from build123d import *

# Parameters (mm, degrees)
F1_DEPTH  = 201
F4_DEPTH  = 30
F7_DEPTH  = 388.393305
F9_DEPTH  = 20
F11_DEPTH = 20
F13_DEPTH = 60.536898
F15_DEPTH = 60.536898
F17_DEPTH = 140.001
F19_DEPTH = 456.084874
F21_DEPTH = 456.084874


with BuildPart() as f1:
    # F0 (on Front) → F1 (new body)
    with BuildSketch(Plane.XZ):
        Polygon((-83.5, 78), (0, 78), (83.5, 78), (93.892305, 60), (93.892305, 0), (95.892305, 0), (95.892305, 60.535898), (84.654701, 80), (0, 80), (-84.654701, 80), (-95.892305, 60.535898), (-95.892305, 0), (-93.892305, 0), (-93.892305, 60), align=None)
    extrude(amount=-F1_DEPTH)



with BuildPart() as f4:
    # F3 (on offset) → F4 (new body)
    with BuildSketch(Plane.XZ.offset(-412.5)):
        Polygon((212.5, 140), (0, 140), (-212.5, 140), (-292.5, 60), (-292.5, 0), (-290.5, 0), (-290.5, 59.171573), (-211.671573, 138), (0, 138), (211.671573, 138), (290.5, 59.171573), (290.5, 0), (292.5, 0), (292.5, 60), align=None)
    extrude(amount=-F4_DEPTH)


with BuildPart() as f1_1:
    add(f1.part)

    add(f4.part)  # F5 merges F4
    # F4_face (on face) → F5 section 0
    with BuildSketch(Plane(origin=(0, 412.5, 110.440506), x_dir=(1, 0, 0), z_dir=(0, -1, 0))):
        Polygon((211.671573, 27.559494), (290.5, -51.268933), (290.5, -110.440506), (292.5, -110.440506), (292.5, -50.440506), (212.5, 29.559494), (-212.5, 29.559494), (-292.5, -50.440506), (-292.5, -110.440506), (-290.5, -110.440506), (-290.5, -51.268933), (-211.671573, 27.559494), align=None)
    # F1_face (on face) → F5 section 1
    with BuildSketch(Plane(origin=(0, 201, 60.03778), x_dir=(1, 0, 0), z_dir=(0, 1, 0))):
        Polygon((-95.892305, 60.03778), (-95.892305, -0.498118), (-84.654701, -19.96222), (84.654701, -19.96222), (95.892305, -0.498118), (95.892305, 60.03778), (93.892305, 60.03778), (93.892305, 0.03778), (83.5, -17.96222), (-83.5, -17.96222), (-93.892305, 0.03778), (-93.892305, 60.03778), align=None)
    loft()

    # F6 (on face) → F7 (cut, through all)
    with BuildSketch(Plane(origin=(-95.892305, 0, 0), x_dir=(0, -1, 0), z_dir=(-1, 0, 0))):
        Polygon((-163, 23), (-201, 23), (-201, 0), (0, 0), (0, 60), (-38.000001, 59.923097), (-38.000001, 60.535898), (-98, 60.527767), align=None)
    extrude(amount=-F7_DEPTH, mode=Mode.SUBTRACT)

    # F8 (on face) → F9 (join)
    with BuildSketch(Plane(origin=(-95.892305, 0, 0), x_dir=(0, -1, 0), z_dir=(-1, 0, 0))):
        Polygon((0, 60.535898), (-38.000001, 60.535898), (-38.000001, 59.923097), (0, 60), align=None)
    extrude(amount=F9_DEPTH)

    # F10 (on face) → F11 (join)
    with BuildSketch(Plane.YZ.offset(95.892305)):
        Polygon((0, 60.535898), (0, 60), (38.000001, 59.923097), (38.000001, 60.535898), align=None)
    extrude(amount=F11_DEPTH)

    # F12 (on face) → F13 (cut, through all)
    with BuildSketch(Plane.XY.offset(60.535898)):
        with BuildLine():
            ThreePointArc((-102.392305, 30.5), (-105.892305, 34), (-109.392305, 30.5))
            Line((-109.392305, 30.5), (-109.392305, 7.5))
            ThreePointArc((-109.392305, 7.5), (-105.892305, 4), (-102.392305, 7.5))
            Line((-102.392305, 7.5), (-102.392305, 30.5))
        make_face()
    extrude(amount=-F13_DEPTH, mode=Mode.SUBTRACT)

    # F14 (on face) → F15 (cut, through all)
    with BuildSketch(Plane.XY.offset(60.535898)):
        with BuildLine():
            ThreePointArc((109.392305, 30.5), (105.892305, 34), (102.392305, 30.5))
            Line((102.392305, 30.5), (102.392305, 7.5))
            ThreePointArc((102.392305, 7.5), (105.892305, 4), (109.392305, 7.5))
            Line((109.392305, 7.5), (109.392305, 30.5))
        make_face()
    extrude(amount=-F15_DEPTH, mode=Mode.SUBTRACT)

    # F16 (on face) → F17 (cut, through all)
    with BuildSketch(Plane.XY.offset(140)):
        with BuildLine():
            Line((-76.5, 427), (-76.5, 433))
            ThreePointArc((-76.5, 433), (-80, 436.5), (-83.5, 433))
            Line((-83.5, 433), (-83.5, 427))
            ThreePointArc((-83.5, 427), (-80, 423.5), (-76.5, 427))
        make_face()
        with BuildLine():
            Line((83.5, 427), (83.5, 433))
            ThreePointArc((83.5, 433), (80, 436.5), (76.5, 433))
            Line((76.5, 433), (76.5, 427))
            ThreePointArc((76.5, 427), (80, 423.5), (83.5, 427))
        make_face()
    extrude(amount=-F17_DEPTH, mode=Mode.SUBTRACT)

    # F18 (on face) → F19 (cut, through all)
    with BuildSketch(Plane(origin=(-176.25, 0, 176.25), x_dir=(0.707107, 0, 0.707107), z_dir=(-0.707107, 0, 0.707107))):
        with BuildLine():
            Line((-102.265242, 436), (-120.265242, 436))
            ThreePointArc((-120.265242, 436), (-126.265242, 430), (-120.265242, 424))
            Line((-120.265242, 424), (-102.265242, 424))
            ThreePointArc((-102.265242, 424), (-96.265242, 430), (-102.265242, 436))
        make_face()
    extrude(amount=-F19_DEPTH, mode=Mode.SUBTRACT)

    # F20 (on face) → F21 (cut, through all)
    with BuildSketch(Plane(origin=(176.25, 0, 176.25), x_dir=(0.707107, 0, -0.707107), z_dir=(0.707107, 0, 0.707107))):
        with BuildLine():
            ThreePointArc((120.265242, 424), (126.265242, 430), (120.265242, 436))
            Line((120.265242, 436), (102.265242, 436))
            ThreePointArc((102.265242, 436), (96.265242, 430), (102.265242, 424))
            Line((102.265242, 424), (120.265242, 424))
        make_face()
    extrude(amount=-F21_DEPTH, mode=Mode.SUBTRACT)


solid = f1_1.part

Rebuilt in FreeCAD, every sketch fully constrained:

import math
import FreeCAD as App
import Part
import Sketcher
from FreeCAD import Vector
Q = App.Units.Quantity


def add_polygon(sketch, points):
    """Adds a closed chain of lines whose ends are joined by coincident constraints."""
    first, n = sketch.GeometryCount, len(points)
    for a, b in zip(points, points[1:] + points[:1]):
        sketch.addGeometry(Part.LineSegment(App.Vector(*a, 0), App.Vector(*b, 0)), False)
    for i in range(n):
        sketch.addConstraint(Sketcher.Constraint("Coincident", first + i, 2, first + (i + 1) % n, 1))

doc = App.newDocument("Part")
body = doc.addObject("PartDesign::Body", "Body")

# Sketch on XZ plane
sketch1 = body.newObject("Sketcher::SketchObject", "Sketch")
sketch1.AttachmentSupport = (doc.getObject("XZ_Plane"), [""])
sketch1.MapMode = "FlatFace"
add_polygon(sketch1, [(-83.5, 78), (83.5, 78), (93.9, 60), (93.9, 0), (95.9, 0), (95.9, 60.5), (84.7, 80), (-84.7, 80), (-95.9, 60.5), (-95.9, 0), (-93.9, 0), (-93.9, 60)])  # lines 0-11
sketch1.addConstraint(Sketcher.Constraint("Horizontal", 0))
sketch1.addConstraint(Sketcher.Constraint("Vertical", 2))
sketch1.addConstraint(Sketcher.Constraint("Horizontal", 3))
sketch1.addConstraint(Sketcher.Constraint("Vertical", 4))
sketch1.addConstraint(Sketcher.Constraint("Horizontal", 6))
sketch1.addConstraint(Sketcher.Constraint("Vertical", 8))
sketch1.addConstraint(Sketcher.Constraint("Horizontal", 9))
sketch1.addConstraint(Sketcher.Constraint("Vertical", 10))
sketch1.addConstraint(Sketcher.Constraint("Symmetric", 3, 2, 8, 2, -1, 1))
sketch1.addConstraint(Sketcher.Constraint("Symmetric", 2, 2, 9, 2, -2))
sketch1.addConstraint(Sketcher.Constraint("Parallel", 1, 5))
sketch1.addConstraint(Sketcher.Constraint("Parallel", 7, 11))
sketch1.addConstraint(Sketcher.Constraint("Horizontal", 4, 2, 7, 2))
sketch1.addConstraint(Sketcher.Constraint("Horizontal", 1, 2, 10, 2))
sketch1.addConstraint(Sketcher.Constraint("Equal", 5, 7))
sketch1.addConstraint(Sketcher.Constraint("DistanceX", 0, 1, 0, 2, Q("167 mm")))
sketch1.addConstraint(Sketcher.Constraint("DistanceX", 3, 1, 3, 2, Q("2 mm")))
sketch1.addConstraint(Sketcher.Constraint("DistanceY", 2, 2, 2, 1, Q("60 mm")))
sketch1.addConstraint(Sketcher.Constraint("Angle", 1, Q("-60 deg")))
sketch1.addConstraint(Sketcher.Constraint("DistanceY", -1, 1, 0, 2, Q("78 mm")))
sketch1.addConstraint(Sketcher.Constraint("DistanceY", -1, 1, 5, 2, Q("80 mm")))
sketch1.addConstraint(Sketcher.Constraint("DistanceX", 6, 2, 6, 1, Q("169.309402 mm")))
pad1 = body.newObject("PartDesign::Pad", "Pad")
pad1.Profile = sketch1
pad1.Length = 201
pad1.Reversed = True
body2 = doc.addObject("PartDesign::Body", "Body001")

# Sketch on XZ plane
sketch2 = body2.newObject("Sketcher::SketchObject", "Sketch001")
sketch2.AttachmentSupport = (doc.getObject("XZ_Plane001"), [""])
sketch2.MapMode = "FlatFace"
sketch2.AttachmentOffset = App.Placement(Vector(0, 0, -412.5), App.Rotation())
add_polygon(sketch2, [(212.5, 140), (-212.5, 140), (-292.5, 60), (-292.5, 0), (-290.5, 0), (-290.5, 59.2), (-211.7, 138), (211.7, 138), (290.5, 59.2), (290.5, 0), (292.5, 0), (292.5, 60)])  # lines 0-11
sketch2.addConstraint(Sketcher.Constraint("Horizontal", 0))
sketch2.addConstraint(Sketcher.Constraint("Vertical", 2))
sketch2.addConstraint(Sketcher.Constraint("Horizontal", 3))
sketch2.addConstraint(Sketcher.Constraint("Vertical", 4))
sketch2.addConstraint(Sketcher.Constraint("Horizontal", 6))
sketch2.addConstraint(Sketcher.Constraint("Vertical", 8))
sketch2.addConstraint(Sketcher.Constraint("Horizontal", 9))
sketch2.addConstraint(Sketcher.Constraint("Vertical", 10))
sketch2.addConstraint(Sketcher.Constraint("Symmetric", 3, 2, 8, 2, -1, 1))
sketch2.addConstraint(Sketcher.Constraint("Symmetric", 2, 2, 9, 2, -2))
sketch2.addConstraint(Sketcher.Constraint("Parallel", 1, 5))
sketch2.addConstraint(Sketcher.Constraint("Perpendicular", 5, 7))
sketch2.addConstraint(Sketcher.Constraint("Parallel", 7, 11))
sketch2.addConstraint(Sketcher.Constraint("Horizontal", 4, 2, 7, 2))
sketch2.addConstraint(Sketcher.Constraint("Horizontal", 1, 2, 10, 2))
sketch2.addConstraint(Sketcher.Constraint("Equal", 5, 7))
sketch2.addConstraint(Sketcher.Constraint("DistanceX", 0, 2, 0, 1, Q("425 mm")))
sketch2.addConstraint(Sketcher.Constraint("DistanceX", 3, 1, 3, 2, Q("2 mm")))
sketch2.addConstraint(Sketcher.Constraint("DistanceY", 2, 2, 2, 1, Q("60 mm")))
sketch2.addConstraint(Sketcher.Constraint("DistanceY", -1, 1, 0, 2, Q("140 mm")))
sketch2.addConstraint(Sketcher.Constraint("DistanceY", -1, 1, 5, 2, Q("138 mm")))
sketch2.addConstraint(Sketcher.Constraint("Distance", 5, Q("111.480231 mm")))
pad2 = body2.newObject("PartDesign::Pad", "Pad001")
pad2.Profile = sketch2
pad2.Length = 30
pad2.Reversed = True
body.AllowCompound = True
doc.recompute()

boolean = body.newObject("PartDesign::Boolean", "Boolean")
boolean.Type = "Fuse"
boolean.addObjects([body2])

# Sketch on XZ plane
sketch3 = body.newObject("Sketcher::SketchObject", "Sketch002")
sketch3.AttachmentSupport = (doc.getObject("XZ_Plane"), [""])
sketch3.MapMode = "FlatFace"
sketch3.AttachmentOffset = App.Placement(Vector(0, 0, -412.5), App.Rotation())
add_polygon(sketch3, [(211.7, 138), (290.5, 59.2), (290.5, 0), (292.5, 0), (292.5, 60), (212.5, 140), (-212.5, 140), (-292.5, 60), (-292.5, 0), (-290.5, 0), (-290.5, 59.2), (-211.7, 138)])  # lines 0-11
sketch3.addConstraint(Sketcher.Constraint("Vertical", 1))
sketch3.addConstraint(Sketcher.Constraint("Horizontal", 2))
sketch3.addConstraint(Sketcher.Constraint("Vertical", 3))
sketch3.addConstraint(Sketcher.Constraint("Horizontal", 5))
sketch3.addConstraint(Sketcher.Constraint("Vertical", 7))
sketch3.addConstraint(Sketcher.Constraint("Horizontal", 8))
sketch3.addConstraint(Sketcher.Constraint("Vertical", 9))
sketch3.addConstraint(Sketcher.Constraint("Horizontal", 11))
sketch3.addConstraint(Sketcher.Constraint("Symmetric", 2, 2, 7, 2, -1, 1))
sketch3.addConstraint(Sketcher.Constraint("Symmetric", 1, 2, 8, 2, -2))
sketch3.addConstraint(Sketcher.Constraint("Parallel", 0, 4))
sketch3.addConstraint(Sketcher.Constraint("Perpendicular", 4, 6))
sketch3.addConstraint(Sketcher.Constraint("Parallel", 6, 10))
sketch3.addConstraint(Sketcher.Constraint("Horizontal", 3, 2, 6, 2))
sketch3.addConstraint(Sketcher.Constraint("Horizontal", 0, 2, 9, 2))
sketch3.addConstraint(Sketcher.Constraint("Equal", 4, 6))
sketch3.addConstraint(Sketcher.Constraint("DistanceX", 2, 1, 2, 2, Q("2 mm")))
sketch3.addConstraint(Sketcher.Constraint("DistanceX", 5, 2, 5, 1, Q("425 mm")))
sketch3.addConstraint(Sketcher.Constraint("DistanceY", 3, 1, 3, 2, Q("60 mm")))
sketch3.addConstraint(Sketcher.Constraint("DistanceY", -1, 1, 4, 2, Q("140 mm")))
sketch3.addConstraint(Sketcher.Constraint("DistanceY", -1, 1, 10, 2, Q("138 mm")))
sketch3.addConstraint(Sketcher.Constraint("Distance", 0, Q("111.480231 mm")))

# Sketch on XZ plane
sketch4 = body.newObject("Sketcher::SketchObject", "Sketch003")
sketch4.AttachmentSupport = (doc.getObject("XZ_Plane"), [""])
sketch4.MapMode = "FlatFace"
sketch4.AttachmentOffset = App.Placement(Vector(0, 0, -201), App.Rotation())
add_polygon(sketch4, [(-95.9, 0), (-95.9, 60.5), (-84.7, 80), (84.7, 80), (95.9, 60.5), (95.9, 0), (93.9, 0), (93.9, 60), (83.5, 78), (-83.5, 78), (-93.9, 60), (-93.9, 0)])  # lines 0-11
sketch4.addConstraint(Sketcher.Constraint("Vertical", 0))
sketch4.addConstraint(Sketcher.Constraint("Horizontal", 2))
sketch4.addConstraint(Sketcher.Constraint("Vertical", 4))
sketch4.addConstraint(Sketcher.Constraint("Horizontal", 5))
sketch4.addConstraint(Sketcher.Constraint("Vertical", 6))
sketch4.addConstraint(Sketcher.Constraint("Horizontal", 8))
sketch4.addConstraint(Sketcher.Constraint("Vertical", 10))
sketch4.addConstraint(Sketcher.Constraint("Horizontal", 11))
sketch4.addConstraint(Sketcher.Constraint("Symmetric", 5, 2, 10, 2, -1, 1))
sketch4.addConstraint(Sketcher.Constraint("Symmetric", 0, 2, 3, 2, -2))
sketch4.addConstraint(Sketcher.Constraint("PointOnObject", 4, 2, -1))
sketch4.addConstraint(Sketcher.Constraint("Parallel", 3, 7))
sketch4.addConstraint(Sketcher.Constraint("Parallel", 1, 9))
sketch4.addConstraint(Sketcher.Constraint("Horizontal", 6, 2, 9, 2))
sketch4.addConstraint(Sketcher.Constraint("Equal", 1, 3))
sketch4.addConstraint(Sketcher.Constraint("DistanceX", 5, 2, 5, 1, Q("2 mm")))
sketch4.addConstraint(Sketcher.Constraint("DistanceX", 8, 2, 8, 1, Q("167 mm")))
sketch4.addConstraint(Sketcher.Constraint("DistanceY", 6, 1, 6, 2, Q("60 mm")))
sketch4.addConstraint(Sketcher.Constraint("Angle", 1, Q("60.000001 deg")))
sketch4.addConstraint(Sketcher.Constraint("DistanceY", -1, 1, 1, 2, Q("80 mm")))
sketch4.addConstraint(Sketcher.Constraint("DistanceY", -1, 1, 7, 2, Q("78 mm")))
sketch4.addConstraint(Sketcher.Constraint("DistanceX", 2, 1, 2, 2, Q("169.309402 mm")))

additiveloft = body.newObject("PartDesign::AdditiveLoft", "AdditiveLoft")
additiveloft.Profile = sketch3
additiveloft.Sections = [sketch4]

# Sketch on YZ plane
sketch5 = body.newObject("Sketcher::SketchObject", "Sketch004")
sketch5.AttachmentSupport = (doc.getObject("YZ_Plane"), [""])
sketch5.MapMode = "FlatFace"
sketch5.AttachmentOffset = App.Placement(Vector(0, 0, -95.892305), App.Rotation())
add_polygon(sketch5, [(163, 23), (201, 23), (201, 0), (0, 0), (0, 60), (38, 59.9), (38, 60.5), (98, 60.5)])  # lines 0-7
sketch5.addConstraint(Sketcher.Constraint("Horizontal", 0))
sketch5.addConstraint(Sketcher.Constraint("Vertical", 1))
sketch5.addConstraint(Sketcher.Constraint("Horizontal", 2))
sketch5.addConstraint(Sketcher.Constraint("Vertical", 3))
sketch5.addConstraint(Sketcher.Constraint("Vertical", 5))
sketch5.addConstraint(Sketcher.Constraint("Coincident", 2, 2, -1, 1))
sketch5.addConstraint(Sketcher.Constraint("DistanceX", 0, 1, 0, 2, Q("38 mm")))
sketch5.addConstraint(Sketcher.Constraint("DistanceX", 2, 2, 2, 1, Q("201 mm")))
sketch5.addConstraint(Sketcher.Constraint("DistanceY", 1, 2, 1, 1, Q("23 mm")))
sketch5.addConstraint(Sketcher.Constraint("DistanceY", 3, 1, 3, 2, Q("60 mm")))
sketch5.addConstraint(Sketcher.Constraint("Angle", 7, Q("-30 deg")))
sketch5.addConstraint(Sketcher.Constraint("Distance", 6, Q("60 mm")))
sketch5.addConstraint(Sketcher.Constraint("DistanceX", -1, 1, 4, 2, Q("38.000001 mm")))
sketch5.addConstraint(Sketcher.Constraint("DistanceY", 5, 1, 5, 2, Q("0.612801 mm")))
sketch5.addConstraint(Sketcher.Constraint("DistanceY", -1, 1, 5, 2, Q("60.535898 mm")))
pocket1 = body.newObject("PartDesign::Pocket", "Pocket")
pocket1.Profile = sketch5
pocket1.Type = "ThroughAll"
pocket1.Reversed = True

# Sketch on YZ plane
sketch6 = body.newObject("Sketcher::SketchObject", "Sketch005")
sketch6.AttachmentSupport = (doc.getObject("YZ_Plane"), [""])
sketch6.MapMode = "FlatFace"
sketch6.AttachmentOffset = App.Placement(Vector(0, 0, -95.892305), App.Rotation())
add_polygon(sketch6, [(0, 60.5), (38, 60.5), (38, 59.9), (0, 60)])  # lines 0-3
sketch6.addConstraint(Sketcher.Constraint("Horizontal", 0))
sketch6.addConstraint(Sketcher.Constraint("Vertical", 1))
sketch6.addConstraint(Sketcher.Constraint("Vertical", 3))
sketch6.addConstraint(Sketcher.Constraint("PointOnObject", 2, 2, -2))
sketch6.addConstraint(Sketcher.Constraint("DistanceX", 0, 1, 0, 2, Q("38.000001 mm")))
sketch6.addConstraint(Sketcher.Constraint("DistanceY", -1, 1, 2, 2, Q("60 mm")))
sketch6.addConstraint(Sketcher.Constraint("DistanceY", 1, 2, 1, 1, Q("0.612801 mm")))
sketch6.addConstraint(Sketcher.Constraint("DistanceY", 3, 1, 3, 2, Q("0.535898 mm")))
pad3 = body.newObject("PartDesign::Pad", "Pad002")
pad3.Profile = sketch6
pad3.Length = 20
pad3.Reversed = True

# Sketch on YZ plane
sketch7 = body.newObject("Sketcher::SketchObject", "Sketch006")
sketch7.AttachmentSupport = (doc.getObject("YZ_Plane"), [""])
sketch7.MapMode = "FlatFace"
sketch7.AttachmentOffset = App.Placement(Vector(0, 0, 95.892305), App.Rotation())
add_polygon(sketch7, [(0, 60.5), (0, 60), (38, 59.9), (38, 60.5)])  # lines 0-3
sketch7.addConstraint(Sketcher.Constraint("Vertical", 0))
sketch7.addConstraint(Sketcher.Constraint("Vertical", 2))
sketch7.addConstraint(Sketcher.Constraint("Horizontal", 3))
sketch7.addConstraint(Sketcher.Constraint("PointOnObject", 0, 2, -2))
sketch7.addConstraint(Sketcher.Constraint("DistanceX", 3, 2, 3, 1, Q("38.000001 mm")))
sketch7.addConstraint(Sketcher.Constraint("DistanceY", -1, 1, 0, 2, Q("60 mm")))
sketch7.addConstraint(Sketcher.Constraint("DistanceY", 0, 2, 0, 1, Q("0.535898 mm")))
sketch7.addConstraint(Sketcher.Constraint("DistanceY", 2, 1, 2, 2, Q("0.612801 mm")))
pad4 = body.newObject("PartDesign::Pad", "Pad003")
pad4.Profile = sketch7
pad4.Length = 20

# Sketch on XY plane
sketch8 = body.newObject("Sketcher::SketchObject", "Sketch007")
sketch8.AttachmentSupport = (doc.getObject("XY_Plane"), [""])
sketch8.MapMode = "FlatFace"
sketch8.AttachmentOffset = App.Placement(Vector(0, 0, 60.535898), App.Rotation())
sketch8.addGeometry(Part.ArcOfCircle(Part.Circle(Vector(-105.9, 30.5, 0), Vector(0, 0, 1), 3.5), math.radians(0), math.radians(180)), False)
sketch8.addGeometry(Part.LineSegment(Vector(-109.4, 30.5, 0), Vector(-109.4, 7.5, 0)), False)
sketch8.addGeometry(Part.ArcOfCircle(Part.Circle(Vector(-105.9, 7.5, 0), Vector(0, 0, 1), 3.5), math.radians(180), math.radians(360)), False)
sketch8.addGeometry(Part.LineSegment(Vector(-102.4, 7.5, 0), Vector(-102.4, 30.5, 0)), False)
sketch8.addConstraint(Sketcher.Constraint("Tangent", 0, 2, 1, 1))
sketch8.addConstraint(Sketcher.Constraint("Tangent", 1, 2, 2, 1))
sketch8.addConstraint(Sketcher.Constraint("Tangent", 2, 2, 3, 1))
sketch8.addConstraint(Sketcher.Constraint("Tangent", 3, 2, 0, 1))
sketch8.addConstraint(Sketcher.Constraint("Vertical", 1))
sketch8.addConstraint(Sketcher.Constraint("Vertical", 3))
sketch8.addConstraint(Sketcher.Constraint("Radius", 0, Q("3.5 mm")))
sketch8.addConstraint(Sketcher.Constraint("DistanceY", 1, 2, 1, 1, Q("23 mm")))
sketch8.addConstraint(Sketcher.Constraint("DistanceY", -1, 1, 0, 3, Q("30.5 mm")))
sketch8.addConstraint(Sketcher.Constraint("DistanceX", 0, 3, -1, 1, Q("105.892305 mm")))
pocket2 = body.newObject("PartDesign::Pocket", "Pocket001")
pocket2.Profile = sketch8
pocket2.Type = "ThroughAll"

# Sketch on XY plane
sketch9 = body.newObject("Sketcher::SketchObject", "Sketch008")
sketch9.AttachmentSupport = (doc.getObject("XY_Plane"), [""])
sketch9.MapMode = "FlatFace"
sketch9.AttachmentOffset = App.Placement(Vector(0, 0, 60.535898), App.Rotation())
sketch9.addGeometry(Part.ArcOfCircle(Part.Circle(Vector(105.9, 30.5, 0), Vector(0, 0, 1), 3.5), math.radians(0), math.radians(180)), False)
sketch9.addGeometry(Part.LineSegment(Vector(102.4, 30.5, 0), Vector(102.4, 7.5, 0)), False)
sketch9.addGeometry(Part.ArcOfCircle(Part.Circle(Vector(105.9, 7.5, 0), Vector(0, 0, 1), 3.5), math.radians(180), math.radians(360)), False)
sketch9.addGeometry(Part.LineSegment(Vector(109.4, 7.5, 0), Vector(109.4, 30.5, 0)), False)
sketch9.addConstraint(Sketcher.Constraint("Tangent", 0, 2, 1, 1))
sketch9.addConstraint(Sketcher.Constraint("Tangent", 1, 2, 2, 1))
sketch9.addConstraint(Sketcher.Constraint("Tangent", 2, 2, 3, 1))
sketch9.addConstraint(Sketcher.Constraint("Tangent", 3, 2, 0, 1))
sketch9.addConstraint(Sketcher.Constraint("Vertical", 1))
sketch9.addConstraint(Sketcher.Constraint("Vertical", 3))
sketch9.addConstraint(Sketcher.Constraint("Radius", 0, Q("3.5 mm")))
sketch9.addConstraint(Sketcher.Constraint("DistanceY", 1, 2, 1, 1, Q("23 mm")))
sketch9.addConstraint(Sketcher.Constraint("DistanceY", -1, 1, 0, 3, Q("30.5 mm")))
sketch9.addConstraint(Sketcher.Constraint("DistanceX", -1, 1, 0, 3, Q("105.892305 mm")))
pocket3 = body.newObject("PartDesign::Pocket", "Pocket002")
pocket3.Profile = sketch9
pocket3.Type = "ThroughAll"

# Sketch on XY plane
sketch10 = body.newObject("Sketcher::SketchObject", "Sketch009")
sketch10.AttachmentSupport = (doc.getObject("XY_Plane"), [""])
sketch10.MapMode = "FlatFace"
sketch10.AttachmentOffset = App.Placement(Vector(0, 0, 140), App.Rotation())
sketch10.addGeometry(Part.LineSegment(Vector(-76.5, 427, 0), Vector(-76.5, 433, 0)), False)
sketch10.addGeometry(Part.ArcOfCircle(Part.Circle(Vector(-80, 433, 0), Vector(0, 0, 1), 3.5), math.radians(0), math.radians(180)), False)
sketch10.addGeometry(Part.LineSegment(Vector(-83.5, 433, 0), Vector(-83.5, 427, 0)), False)
sketch10.addGeometry(Part.ArcOfCircle(Part.Circle(Vector(-80, 427, 0), Vector(0, 0, 1), 3.5), math.radians(180), math.radians(360)), False)
sketch10.addGeometry(Part.LineSegment(Vector(83.5, 427, 0), Vector(83.5, 433, 0)), False)
sketch10.addGeometry(Part.ArcOfCircle(Part.Circle(Vector(80, 433, 0), Vector(0, 0, 1), 3.5), math.radians(0), math.radians(180)), False)
sketch10.addGeometry(Part.LineSegment(Vector(76.5, 433, 0), Vector(76.5, 427, 0)), False)
sketch10.addGeometry(Part.ArcOfCircle(Part.Circle(Vector(80, 427, 0), Vector(0, 0, 1), 3.5), math.radians(180), math.radians(360)), False)
sketch10.addConstraint(Sketcher.Constraint("Tangent", 0, 2, 1, 1))
sketch10.addConstraint(Sketcher.Constraint("Tangent", 1, 2, 2, 1))
sketch10.addConstraint(Sketcher.Constraint("Tangent", 2, 2, 3, 1))
sketch10.addConstraint(Sketcher.Constraint("Tangent", 3, 2, 0, 1))
sketch10.addConstraint(Sketcher.Constraint("Tangent", 4, 2, 5, 1))
sketch10.addConstraint(Sketcher.Constraint("Tangent", 5, 2, 6, 1))
sketch10.addConstraint(Sketcher.Constraint("Tangent", 6, 2, 7, 1))
sketch10.addConstraint(Sketcher.Constraint("Tangent", 7, 2, 4, 1))
sketch10.addConstraint(Sketcher.Constraint("Vertical", 0))
sketch10.addConstraint(Sketcher.Constraint("Vertical", 2))
sketch10.addConstraint(Sketcher.Constraint("Vertical", 4))
sketch10.addConstraint(Sketcher.Constraint("Vertical", 6))
sketch10.addConstraint(Sketcher.Constraint("Equal", 3, 5))
sketch10.addConstraint(Sketcher.Constraint("Symmetric", 1, 3, 5, 3, -2))
sketch10.addConstraint(Sketcher.Constraint("Horizontal", 3, 3, 7, 3))
sketch10.addConstraint(Sketcher.Constraint("Radius", 1, Q("3.5 mm")))
sketch10.addConstraint(Sketcher.Constraint("DistanceY", 0, 1, 0, 2, Q("6 mm")))
sketch10.addConstraint(Sketcher.Constraint("DistanceX", 1, 3, -1, 1, Q("80 mm")))
sketch10.addConstraint(Sketcher.Constraint("DistanceY", -1, 1, 1, 3, Q("433 mm")))
pocket4 = body.newObject("PartDesign::Pocket", "Pocket003")
pocket4.Profile = sketch10
pocket4.Type = "ThroughAll"

# Sketch on an angled plane
sketch11 = body.newObject("Sketcher::SketchObject", "Sketch010")
sketch11.Placement = App.Placement(Vector(-176.25, 0, 176.25), App.Rotation(Vector(0.707106781, 0, 0.707106781), Vector(0, 0.999999999, 0), Vector(-0.707106781, 0, 0.707106781), "ZXY"))
sketch11.addGeometry(Part.LineSegment(Vector(-102, 436, 0), Vector(-120, 436, 0)), False)
sketch11.addGeometry(Part.ArcOfCircle(Part.Circle(Vector(-120, 430, 0), Vector(0, 0, 1), 6), math.radians(90), math.radians(270)), False)
sketch11.addGeometry(Part.LineSegment(Vector(-120, 424, 0), Vector(-102, 424, 0)), False)
sketch11.addGeometry(Part.ArcOfCircle(Part.Circle(Vector(-102, 430, 0), Vector(0, 0, 1), 6), math.radians(-90), math.radians(90)), False)
sketch11.addConstraint(Sketcher.Constraint("Tangent", 0, 2, 1, 1))
sketch11.addConstraint(Sketcher.Constraint("Tangent", 1, 2, 2, 1))
sketch11.addConstraint(Sketcher.Constraint("Tangent", 2, 2, 3, 1))
sketch11.addConstraint(Sketcher.Constraint("Tangent", 3, 2, 0, 1))
sketch11.addConstraint(Sketcher.Constraint("Horizontal", 0))
sketch11.addConstraint(Sketcher.Constraint("Horizontal", 2))
sketch11.addConstraint(Sketcher.Constraint("Radius", 1, Q("6 mm")))
sketch11.addConstraint(Sketcher.Constraint("DistanceX", 0, 2, 0, 1, Q("18 mm")))
sketch11.addConstraint(Sketcher.Constraint("DistanceY", -1, 1, 1, 3, Q("430 mm")))
sketch11.addConstraint(Sketcher.Constraint("DistanceX", 1, 3, -1, 1, Q("120.265242 mm")))
pocket5 = body.newObject("PartDesign::Pocket", "Pocket004")
pocket5.Profile = sketch11
pocket5.Type = "ThroughAll"

# Sketch on an angled plane
sketch12 = body.newObject("Sketcher::SketchObject", "Sketch011")
sketch12.Placement = App.Placement(Vector(176.25, 0, 176.25), App.Rotation(Vector(0.707106781, 0, -0.707106781), Vector(0, 0.999999999, 0), Vector(0.707106781, 0, 0.707106781), "ZXY"))
sketch12.addGeometry(Part.ArcOfCircle(Part.Circle(Vector(120, 430, 0), Vector(0, 0, 1), 6), math.radians(-90), math.radians(90)), False)
sketch12.addGeometry(Part.LineSegment(Vector(120, 436, 0), Vector(102, 436, 0)), False)
sketch12.addGeometry(Part.ArcOfCircle(Part.Circle(Vector(102, 430, 0), Vector(0, 0, 1), 6), math.radians(90), math.radians(270)), False)
sketch12.addGeometry(Part.LineSegment(Vector(102, 424, 0), Vector(120, 424, 0)), False)
sketch12.addConstraint(Sketcher.Constraint("Tangent", 0, 2, 1, 1))
sketch12.addConstraint(Sketcher.Constraint("Tangent", 1, 2, 2, 1))
sketch12.addConstraint(Sketcher.Constraint("Tangent", 2, 2, 3, 1))
sketch12.addConstraint(Sketcher.Constraint("Tangent", 3, 2, 0, 1))
sketch12.addConstraint(Sketcher.Constraint("Horizontal", 1))
sketch12.addConstraint(Sketcher.Constraint("Horizontal", 3))
sketch12.addConstraint(Sketcher.Constraint("Radius", 0, Q("6 mm")))
sketch12.addConstraint(Sketcher.Constraint("DistanceX", 1, 2, 1, 1, Q("18 mm")))
sketch12.addConstraint(Sketcher.Constraint("DistanceY", -1, 1, 0, 3, Q("430 mm")))
sketch12.addConstraint(Sketcher.Constraint("DistanceX", -1, 1, 0, 3, Q("120.265242 mm")))
pocket6 = body.newObject("PartDesign::Pocket", "Pocket005")
pocket6.Profile = sketch12
pocket6.Type = "ThroughAll"

doc.recompute()
